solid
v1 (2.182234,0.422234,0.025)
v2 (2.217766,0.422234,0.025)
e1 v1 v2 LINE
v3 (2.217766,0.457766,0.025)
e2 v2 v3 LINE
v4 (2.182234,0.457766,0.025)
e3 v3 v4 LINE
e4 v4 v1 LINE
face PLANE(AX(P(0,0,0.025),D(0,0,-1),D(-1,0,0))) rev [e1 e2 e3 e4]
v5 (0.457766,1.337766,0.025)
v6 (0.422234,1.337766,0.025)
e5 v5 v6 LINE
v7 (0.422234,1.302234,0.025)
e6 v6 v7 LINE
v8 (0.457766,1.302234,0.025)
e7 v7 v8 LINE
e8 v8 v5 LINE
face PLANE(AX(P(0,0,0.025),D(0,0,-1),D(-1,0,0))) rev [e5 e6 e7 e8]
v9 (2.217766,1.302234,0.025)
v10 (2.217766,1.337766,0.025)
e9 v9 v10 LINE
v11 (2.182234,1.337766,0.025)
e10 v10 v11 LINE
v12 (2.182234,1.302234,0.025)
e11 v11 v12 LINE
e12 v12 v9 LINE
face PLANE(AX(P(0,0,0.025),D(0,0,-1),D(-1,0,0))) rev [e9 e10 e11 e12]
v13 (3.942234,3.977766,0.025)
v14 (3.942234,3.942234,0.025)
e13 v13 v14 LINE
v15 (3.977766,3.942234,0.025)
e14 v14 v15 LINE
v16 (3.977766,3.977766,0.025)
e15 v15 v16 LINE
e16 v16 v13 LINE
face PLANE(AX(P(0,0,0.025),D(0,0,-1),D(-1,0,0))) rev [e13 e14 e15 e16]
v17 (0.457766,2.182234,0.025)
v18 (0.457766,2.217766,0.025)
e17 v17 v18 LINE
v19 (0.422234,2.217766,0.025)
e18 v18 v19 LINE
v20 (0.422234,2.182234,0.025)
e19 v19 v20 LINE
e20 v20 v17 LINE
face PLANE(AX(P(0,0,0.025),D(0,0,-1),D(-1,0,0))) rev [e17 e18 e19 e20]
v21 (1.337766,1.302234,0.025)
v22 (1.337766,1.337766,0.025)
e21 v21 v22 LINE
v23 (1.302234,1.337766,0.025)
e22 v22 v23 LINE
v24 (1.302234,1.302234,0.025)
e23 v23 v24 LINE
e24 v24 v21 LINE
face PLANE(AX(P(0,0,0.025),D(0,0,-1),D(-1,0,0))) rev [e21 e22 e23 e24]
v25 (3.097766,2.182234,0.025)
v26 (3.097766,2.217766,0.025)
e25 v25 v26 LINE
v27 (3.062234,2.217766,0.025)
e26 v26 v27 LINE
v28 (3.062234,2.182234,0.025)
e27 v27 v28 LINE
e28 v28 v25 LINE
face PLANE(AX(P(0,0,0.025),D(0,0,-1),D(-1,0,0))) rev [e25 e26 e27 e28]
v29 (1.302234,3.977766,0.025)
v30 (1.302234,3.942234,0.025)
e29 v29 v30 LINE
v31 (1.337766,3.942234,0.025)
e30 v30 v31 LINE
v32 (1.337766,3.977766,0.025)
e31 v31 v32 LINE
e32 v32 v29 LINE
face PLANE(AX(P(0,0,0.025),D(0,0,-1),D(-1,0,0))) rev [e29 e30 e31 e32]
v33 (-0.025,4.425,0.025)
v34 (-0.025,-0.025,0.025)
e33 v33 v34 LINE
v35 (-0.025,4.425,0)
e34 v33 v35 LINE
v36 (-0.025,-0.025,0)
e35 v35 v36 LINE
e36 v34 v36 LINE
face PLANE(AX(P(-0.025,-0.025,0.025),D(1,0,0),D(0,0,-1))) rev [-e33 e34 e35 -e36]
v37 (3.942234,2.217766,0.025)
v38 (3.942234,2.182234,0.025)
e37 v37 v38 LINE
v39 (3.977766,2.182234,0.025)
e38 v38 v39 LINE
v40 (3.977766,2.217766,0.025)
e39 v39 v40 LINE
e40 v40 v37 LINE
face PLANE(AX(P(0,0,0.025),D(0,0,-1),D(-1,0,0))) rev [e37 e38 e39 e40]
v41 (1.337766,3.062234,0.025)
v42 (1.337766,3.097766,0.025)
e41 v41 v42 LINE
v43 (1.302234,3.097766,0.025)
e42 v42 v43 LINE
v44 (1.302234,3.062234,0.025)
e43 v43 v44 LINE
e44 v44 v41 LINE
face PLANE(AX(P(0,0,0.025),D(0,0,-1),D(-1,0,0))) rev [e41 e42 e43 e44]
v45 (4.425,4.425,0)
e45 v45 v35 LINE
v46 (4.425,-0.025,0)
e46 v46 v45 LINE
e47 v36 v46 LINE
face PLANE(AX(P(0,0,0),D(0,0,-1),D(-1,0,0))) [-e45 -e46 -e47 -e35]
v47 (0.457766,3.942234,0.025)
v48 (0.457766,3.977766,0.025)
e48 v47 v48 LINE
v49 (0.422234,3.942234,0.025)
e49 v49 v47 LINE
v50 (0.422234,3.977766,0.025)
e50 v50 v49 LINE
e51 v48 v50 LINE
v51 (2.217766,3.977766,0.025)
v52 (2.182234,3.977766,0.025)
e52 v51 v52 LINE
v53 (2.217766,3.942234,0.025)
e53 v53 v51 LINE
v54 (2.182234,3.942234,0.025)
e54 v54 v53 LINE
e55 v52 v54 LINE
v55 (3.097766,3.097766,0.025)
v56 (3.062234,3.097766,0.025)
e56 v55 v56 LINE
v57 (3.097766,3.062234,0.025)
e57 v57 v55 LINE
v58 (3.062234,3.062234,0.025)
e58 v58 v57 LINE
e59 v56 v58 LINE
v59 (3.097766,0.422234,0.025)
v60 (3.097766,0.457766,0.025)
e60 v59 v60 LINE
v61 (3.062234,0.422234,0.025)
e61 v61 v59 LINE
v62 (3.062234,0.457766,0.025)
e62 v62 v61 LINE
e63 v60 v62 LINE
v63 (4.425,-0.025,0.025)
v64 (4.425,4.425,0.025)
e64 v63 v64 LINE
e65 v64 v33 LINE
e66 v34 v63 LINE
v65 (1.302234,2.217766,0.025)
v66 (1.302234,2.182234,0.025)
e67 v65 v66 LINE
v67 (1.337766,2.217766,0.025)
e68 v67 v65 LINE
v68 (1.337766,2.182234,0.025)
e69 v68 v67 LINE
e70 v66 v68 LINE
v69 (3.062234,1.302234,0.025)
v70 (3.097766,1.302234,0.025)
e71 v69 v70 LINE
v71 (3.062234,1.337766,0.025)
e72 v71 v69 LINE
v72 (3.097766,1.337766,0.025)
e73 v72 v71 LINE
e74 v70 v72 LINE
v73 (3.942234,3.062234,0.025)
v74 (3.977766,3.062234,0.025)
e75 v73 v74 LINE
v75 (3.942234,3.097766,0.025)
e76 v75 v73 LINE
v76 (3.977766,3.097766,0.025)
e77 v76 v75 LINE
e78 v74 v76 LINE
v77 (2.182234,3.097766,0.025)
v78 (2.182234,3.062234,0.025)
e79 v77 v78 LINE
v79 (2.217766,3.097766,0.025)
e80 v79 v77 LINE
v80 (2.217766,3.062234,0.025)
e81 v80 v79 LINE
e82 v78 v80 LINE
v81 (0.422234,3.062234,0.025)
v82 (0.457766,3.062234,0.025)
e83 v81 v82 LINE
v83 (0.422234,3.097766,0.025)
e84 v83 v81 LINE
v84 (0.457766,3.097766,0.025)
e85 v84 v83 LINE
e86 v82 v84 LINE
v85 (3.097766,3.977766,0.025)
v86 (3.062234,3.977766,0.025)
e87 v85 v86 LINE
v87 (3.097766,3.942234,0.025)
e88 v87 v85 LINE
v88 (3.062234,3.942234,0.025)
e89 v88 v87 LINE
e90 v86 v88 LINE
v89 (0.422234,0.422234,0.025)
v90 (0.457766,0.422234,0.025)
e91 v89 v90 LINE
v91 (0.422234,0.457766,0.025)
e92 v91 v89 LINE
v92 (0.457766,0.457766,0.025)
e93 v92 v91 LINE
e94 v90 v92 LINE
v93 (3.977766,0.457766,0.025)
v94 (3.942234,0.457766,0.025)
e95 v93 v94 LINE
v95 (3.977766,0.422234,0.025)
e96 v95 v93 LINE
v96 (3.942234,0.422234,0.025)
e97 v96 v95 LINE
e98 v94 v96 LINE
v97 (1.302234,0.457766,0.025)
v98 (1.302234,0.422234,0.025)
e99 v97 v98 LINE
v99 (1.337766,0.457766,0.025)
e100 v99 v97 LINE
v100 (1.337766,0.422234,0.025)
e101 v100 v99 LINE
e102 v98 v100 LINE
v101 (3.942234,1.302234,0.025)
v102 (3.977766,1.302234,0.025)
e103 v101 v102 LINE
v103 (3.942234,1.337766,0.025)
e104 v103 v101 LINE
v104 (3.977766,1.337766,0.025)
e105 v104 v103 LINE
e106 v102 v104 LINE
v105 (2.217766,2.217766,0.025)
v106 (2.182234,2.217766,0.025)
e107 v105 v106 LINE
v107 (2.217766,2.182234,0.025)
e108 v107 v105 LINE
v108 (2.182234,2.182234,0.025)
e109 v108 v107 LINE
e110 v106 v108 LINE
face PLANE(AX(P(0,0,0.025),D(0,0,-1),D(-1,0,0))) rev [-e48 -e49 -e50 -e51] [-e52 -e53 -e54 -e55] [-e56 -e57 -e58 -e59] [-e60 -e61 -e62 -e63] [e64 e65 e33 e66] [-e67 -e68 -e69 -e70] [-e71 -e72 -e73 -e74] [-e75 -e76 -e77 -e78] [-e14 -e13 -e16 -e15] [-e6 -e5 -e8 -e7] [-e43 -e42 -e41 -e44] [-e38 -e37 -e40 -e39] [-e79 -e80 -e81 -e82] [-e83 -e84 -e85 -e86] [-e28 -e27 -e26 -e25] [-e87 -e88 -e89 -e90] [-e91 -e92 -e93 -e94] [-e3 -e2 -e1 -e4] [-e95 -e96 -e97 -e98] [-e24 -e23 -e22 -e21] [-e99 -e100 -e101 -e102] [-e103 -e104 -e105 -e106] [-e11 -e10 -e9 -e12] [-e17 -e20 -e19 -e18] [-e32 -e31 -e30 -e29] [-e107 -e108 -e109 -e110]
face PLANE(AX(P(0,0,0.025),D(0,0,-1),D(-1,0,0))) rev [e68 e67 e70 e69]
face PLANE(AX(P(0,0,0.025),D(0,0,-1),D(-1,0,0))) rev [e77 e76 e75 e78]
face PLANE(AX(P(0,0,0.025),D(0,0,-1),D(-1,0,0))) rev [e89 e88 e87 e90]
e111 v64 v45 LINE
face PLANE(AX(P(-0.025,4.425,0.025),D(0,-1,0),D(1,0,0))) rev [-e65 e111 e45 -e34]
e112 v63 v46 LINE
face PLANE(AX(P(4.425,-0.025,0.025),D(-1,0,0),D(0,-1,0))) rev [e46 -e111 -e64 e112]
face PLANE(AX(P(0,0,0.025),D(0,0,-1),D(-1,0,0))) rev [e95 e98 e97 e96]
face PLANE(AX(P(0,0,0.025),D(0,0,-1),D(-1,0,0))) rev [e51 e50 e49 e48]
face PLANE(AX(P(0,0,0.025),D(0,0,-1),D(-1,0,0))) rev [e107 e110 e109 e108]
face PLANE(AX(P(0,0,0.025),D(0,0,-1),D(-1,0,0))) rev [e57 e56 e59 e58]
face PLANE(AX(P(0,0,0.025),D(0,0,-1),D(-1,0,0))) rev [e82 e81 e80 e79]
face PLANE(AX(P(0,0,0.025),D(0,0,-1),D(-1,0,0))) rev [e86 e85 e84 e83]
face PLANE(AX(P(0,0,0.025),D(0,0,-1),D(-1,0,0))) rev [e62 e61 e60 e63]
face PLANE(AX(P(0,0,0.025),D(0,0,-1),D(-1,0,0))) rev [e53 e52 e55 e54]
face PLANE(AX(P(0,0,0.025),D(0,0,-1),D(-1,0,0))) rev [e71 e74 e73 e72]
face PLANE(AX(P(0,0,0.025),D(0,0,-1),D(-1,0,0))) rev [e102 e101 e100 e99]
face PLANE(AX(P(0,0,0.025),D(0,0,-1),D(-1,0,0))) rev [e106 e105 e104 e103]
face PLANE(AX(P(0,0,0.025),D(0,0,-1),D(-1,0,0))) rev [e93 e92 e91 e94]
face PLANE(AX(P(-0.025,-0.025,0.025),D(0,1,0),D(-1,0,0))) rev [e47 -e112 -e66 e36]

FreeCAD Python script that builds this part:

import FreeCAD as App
import Part
import Sketcher

V = App.Vector


def add_polygon(sketch, points):
    """Adds a closed chain of lines whose ends are joined by coincident constraints."""
    first, n = sketch.GeometryCount, len(points)
    for a, b in zip(points, points[1:] + points[:1]):
        sketch.addGeometry(Part.LineSegment(App.Vector(*a, 0), App.Vector(*b, 0)), False)
    for i in range(n):
        sketch.addConstraint(Sketcher.Constraint("Coincident", first + i, 2, first + (i + 1) % n, 1))

doc = App.newDocument("Part")
body = doc.addObject("PartDesign::Body", "Body")

# Sketch on XY plane
sketch1 = body.newObject("Sketcher::SketchObject", "Sketch")
sketch1.AttachmentSupport = (doc.getObject("XY_Plane"), [""])
sketch1.MapMode = "FlatFace"
add_polygon(sketch1, [(0, 4.4), (0, 0), (4.4, 0), (4.4, 4.4)])  # lines 0-3
sketch1.addConstraint([
    Sketcher.Constraint("Vertical", 0),
    Sketcher.Constraint("Horizontal", 1),
    Sketcher.Constraint("Vertical", 2),
    Sketcher.Constraint("Horizontal", 3),
    Sketcher.Constraint("Equal", 3, 0),
    Sketcher.Constraint("DistanceX", 1, 1, 1, 2, 4.45),
    Sketcher.Constraint("DistanceX", 0, 2, -1, 1, 0.025),
    Sketcher.Constraint("DistanceY", 0, 2, -1, 1, 0.025),
])
pad1 = body.newObject("PartDesign::Pad", "Pad")
pad1.Profile = sketch1
pad1.Length = 0.025

doc.recompute()
